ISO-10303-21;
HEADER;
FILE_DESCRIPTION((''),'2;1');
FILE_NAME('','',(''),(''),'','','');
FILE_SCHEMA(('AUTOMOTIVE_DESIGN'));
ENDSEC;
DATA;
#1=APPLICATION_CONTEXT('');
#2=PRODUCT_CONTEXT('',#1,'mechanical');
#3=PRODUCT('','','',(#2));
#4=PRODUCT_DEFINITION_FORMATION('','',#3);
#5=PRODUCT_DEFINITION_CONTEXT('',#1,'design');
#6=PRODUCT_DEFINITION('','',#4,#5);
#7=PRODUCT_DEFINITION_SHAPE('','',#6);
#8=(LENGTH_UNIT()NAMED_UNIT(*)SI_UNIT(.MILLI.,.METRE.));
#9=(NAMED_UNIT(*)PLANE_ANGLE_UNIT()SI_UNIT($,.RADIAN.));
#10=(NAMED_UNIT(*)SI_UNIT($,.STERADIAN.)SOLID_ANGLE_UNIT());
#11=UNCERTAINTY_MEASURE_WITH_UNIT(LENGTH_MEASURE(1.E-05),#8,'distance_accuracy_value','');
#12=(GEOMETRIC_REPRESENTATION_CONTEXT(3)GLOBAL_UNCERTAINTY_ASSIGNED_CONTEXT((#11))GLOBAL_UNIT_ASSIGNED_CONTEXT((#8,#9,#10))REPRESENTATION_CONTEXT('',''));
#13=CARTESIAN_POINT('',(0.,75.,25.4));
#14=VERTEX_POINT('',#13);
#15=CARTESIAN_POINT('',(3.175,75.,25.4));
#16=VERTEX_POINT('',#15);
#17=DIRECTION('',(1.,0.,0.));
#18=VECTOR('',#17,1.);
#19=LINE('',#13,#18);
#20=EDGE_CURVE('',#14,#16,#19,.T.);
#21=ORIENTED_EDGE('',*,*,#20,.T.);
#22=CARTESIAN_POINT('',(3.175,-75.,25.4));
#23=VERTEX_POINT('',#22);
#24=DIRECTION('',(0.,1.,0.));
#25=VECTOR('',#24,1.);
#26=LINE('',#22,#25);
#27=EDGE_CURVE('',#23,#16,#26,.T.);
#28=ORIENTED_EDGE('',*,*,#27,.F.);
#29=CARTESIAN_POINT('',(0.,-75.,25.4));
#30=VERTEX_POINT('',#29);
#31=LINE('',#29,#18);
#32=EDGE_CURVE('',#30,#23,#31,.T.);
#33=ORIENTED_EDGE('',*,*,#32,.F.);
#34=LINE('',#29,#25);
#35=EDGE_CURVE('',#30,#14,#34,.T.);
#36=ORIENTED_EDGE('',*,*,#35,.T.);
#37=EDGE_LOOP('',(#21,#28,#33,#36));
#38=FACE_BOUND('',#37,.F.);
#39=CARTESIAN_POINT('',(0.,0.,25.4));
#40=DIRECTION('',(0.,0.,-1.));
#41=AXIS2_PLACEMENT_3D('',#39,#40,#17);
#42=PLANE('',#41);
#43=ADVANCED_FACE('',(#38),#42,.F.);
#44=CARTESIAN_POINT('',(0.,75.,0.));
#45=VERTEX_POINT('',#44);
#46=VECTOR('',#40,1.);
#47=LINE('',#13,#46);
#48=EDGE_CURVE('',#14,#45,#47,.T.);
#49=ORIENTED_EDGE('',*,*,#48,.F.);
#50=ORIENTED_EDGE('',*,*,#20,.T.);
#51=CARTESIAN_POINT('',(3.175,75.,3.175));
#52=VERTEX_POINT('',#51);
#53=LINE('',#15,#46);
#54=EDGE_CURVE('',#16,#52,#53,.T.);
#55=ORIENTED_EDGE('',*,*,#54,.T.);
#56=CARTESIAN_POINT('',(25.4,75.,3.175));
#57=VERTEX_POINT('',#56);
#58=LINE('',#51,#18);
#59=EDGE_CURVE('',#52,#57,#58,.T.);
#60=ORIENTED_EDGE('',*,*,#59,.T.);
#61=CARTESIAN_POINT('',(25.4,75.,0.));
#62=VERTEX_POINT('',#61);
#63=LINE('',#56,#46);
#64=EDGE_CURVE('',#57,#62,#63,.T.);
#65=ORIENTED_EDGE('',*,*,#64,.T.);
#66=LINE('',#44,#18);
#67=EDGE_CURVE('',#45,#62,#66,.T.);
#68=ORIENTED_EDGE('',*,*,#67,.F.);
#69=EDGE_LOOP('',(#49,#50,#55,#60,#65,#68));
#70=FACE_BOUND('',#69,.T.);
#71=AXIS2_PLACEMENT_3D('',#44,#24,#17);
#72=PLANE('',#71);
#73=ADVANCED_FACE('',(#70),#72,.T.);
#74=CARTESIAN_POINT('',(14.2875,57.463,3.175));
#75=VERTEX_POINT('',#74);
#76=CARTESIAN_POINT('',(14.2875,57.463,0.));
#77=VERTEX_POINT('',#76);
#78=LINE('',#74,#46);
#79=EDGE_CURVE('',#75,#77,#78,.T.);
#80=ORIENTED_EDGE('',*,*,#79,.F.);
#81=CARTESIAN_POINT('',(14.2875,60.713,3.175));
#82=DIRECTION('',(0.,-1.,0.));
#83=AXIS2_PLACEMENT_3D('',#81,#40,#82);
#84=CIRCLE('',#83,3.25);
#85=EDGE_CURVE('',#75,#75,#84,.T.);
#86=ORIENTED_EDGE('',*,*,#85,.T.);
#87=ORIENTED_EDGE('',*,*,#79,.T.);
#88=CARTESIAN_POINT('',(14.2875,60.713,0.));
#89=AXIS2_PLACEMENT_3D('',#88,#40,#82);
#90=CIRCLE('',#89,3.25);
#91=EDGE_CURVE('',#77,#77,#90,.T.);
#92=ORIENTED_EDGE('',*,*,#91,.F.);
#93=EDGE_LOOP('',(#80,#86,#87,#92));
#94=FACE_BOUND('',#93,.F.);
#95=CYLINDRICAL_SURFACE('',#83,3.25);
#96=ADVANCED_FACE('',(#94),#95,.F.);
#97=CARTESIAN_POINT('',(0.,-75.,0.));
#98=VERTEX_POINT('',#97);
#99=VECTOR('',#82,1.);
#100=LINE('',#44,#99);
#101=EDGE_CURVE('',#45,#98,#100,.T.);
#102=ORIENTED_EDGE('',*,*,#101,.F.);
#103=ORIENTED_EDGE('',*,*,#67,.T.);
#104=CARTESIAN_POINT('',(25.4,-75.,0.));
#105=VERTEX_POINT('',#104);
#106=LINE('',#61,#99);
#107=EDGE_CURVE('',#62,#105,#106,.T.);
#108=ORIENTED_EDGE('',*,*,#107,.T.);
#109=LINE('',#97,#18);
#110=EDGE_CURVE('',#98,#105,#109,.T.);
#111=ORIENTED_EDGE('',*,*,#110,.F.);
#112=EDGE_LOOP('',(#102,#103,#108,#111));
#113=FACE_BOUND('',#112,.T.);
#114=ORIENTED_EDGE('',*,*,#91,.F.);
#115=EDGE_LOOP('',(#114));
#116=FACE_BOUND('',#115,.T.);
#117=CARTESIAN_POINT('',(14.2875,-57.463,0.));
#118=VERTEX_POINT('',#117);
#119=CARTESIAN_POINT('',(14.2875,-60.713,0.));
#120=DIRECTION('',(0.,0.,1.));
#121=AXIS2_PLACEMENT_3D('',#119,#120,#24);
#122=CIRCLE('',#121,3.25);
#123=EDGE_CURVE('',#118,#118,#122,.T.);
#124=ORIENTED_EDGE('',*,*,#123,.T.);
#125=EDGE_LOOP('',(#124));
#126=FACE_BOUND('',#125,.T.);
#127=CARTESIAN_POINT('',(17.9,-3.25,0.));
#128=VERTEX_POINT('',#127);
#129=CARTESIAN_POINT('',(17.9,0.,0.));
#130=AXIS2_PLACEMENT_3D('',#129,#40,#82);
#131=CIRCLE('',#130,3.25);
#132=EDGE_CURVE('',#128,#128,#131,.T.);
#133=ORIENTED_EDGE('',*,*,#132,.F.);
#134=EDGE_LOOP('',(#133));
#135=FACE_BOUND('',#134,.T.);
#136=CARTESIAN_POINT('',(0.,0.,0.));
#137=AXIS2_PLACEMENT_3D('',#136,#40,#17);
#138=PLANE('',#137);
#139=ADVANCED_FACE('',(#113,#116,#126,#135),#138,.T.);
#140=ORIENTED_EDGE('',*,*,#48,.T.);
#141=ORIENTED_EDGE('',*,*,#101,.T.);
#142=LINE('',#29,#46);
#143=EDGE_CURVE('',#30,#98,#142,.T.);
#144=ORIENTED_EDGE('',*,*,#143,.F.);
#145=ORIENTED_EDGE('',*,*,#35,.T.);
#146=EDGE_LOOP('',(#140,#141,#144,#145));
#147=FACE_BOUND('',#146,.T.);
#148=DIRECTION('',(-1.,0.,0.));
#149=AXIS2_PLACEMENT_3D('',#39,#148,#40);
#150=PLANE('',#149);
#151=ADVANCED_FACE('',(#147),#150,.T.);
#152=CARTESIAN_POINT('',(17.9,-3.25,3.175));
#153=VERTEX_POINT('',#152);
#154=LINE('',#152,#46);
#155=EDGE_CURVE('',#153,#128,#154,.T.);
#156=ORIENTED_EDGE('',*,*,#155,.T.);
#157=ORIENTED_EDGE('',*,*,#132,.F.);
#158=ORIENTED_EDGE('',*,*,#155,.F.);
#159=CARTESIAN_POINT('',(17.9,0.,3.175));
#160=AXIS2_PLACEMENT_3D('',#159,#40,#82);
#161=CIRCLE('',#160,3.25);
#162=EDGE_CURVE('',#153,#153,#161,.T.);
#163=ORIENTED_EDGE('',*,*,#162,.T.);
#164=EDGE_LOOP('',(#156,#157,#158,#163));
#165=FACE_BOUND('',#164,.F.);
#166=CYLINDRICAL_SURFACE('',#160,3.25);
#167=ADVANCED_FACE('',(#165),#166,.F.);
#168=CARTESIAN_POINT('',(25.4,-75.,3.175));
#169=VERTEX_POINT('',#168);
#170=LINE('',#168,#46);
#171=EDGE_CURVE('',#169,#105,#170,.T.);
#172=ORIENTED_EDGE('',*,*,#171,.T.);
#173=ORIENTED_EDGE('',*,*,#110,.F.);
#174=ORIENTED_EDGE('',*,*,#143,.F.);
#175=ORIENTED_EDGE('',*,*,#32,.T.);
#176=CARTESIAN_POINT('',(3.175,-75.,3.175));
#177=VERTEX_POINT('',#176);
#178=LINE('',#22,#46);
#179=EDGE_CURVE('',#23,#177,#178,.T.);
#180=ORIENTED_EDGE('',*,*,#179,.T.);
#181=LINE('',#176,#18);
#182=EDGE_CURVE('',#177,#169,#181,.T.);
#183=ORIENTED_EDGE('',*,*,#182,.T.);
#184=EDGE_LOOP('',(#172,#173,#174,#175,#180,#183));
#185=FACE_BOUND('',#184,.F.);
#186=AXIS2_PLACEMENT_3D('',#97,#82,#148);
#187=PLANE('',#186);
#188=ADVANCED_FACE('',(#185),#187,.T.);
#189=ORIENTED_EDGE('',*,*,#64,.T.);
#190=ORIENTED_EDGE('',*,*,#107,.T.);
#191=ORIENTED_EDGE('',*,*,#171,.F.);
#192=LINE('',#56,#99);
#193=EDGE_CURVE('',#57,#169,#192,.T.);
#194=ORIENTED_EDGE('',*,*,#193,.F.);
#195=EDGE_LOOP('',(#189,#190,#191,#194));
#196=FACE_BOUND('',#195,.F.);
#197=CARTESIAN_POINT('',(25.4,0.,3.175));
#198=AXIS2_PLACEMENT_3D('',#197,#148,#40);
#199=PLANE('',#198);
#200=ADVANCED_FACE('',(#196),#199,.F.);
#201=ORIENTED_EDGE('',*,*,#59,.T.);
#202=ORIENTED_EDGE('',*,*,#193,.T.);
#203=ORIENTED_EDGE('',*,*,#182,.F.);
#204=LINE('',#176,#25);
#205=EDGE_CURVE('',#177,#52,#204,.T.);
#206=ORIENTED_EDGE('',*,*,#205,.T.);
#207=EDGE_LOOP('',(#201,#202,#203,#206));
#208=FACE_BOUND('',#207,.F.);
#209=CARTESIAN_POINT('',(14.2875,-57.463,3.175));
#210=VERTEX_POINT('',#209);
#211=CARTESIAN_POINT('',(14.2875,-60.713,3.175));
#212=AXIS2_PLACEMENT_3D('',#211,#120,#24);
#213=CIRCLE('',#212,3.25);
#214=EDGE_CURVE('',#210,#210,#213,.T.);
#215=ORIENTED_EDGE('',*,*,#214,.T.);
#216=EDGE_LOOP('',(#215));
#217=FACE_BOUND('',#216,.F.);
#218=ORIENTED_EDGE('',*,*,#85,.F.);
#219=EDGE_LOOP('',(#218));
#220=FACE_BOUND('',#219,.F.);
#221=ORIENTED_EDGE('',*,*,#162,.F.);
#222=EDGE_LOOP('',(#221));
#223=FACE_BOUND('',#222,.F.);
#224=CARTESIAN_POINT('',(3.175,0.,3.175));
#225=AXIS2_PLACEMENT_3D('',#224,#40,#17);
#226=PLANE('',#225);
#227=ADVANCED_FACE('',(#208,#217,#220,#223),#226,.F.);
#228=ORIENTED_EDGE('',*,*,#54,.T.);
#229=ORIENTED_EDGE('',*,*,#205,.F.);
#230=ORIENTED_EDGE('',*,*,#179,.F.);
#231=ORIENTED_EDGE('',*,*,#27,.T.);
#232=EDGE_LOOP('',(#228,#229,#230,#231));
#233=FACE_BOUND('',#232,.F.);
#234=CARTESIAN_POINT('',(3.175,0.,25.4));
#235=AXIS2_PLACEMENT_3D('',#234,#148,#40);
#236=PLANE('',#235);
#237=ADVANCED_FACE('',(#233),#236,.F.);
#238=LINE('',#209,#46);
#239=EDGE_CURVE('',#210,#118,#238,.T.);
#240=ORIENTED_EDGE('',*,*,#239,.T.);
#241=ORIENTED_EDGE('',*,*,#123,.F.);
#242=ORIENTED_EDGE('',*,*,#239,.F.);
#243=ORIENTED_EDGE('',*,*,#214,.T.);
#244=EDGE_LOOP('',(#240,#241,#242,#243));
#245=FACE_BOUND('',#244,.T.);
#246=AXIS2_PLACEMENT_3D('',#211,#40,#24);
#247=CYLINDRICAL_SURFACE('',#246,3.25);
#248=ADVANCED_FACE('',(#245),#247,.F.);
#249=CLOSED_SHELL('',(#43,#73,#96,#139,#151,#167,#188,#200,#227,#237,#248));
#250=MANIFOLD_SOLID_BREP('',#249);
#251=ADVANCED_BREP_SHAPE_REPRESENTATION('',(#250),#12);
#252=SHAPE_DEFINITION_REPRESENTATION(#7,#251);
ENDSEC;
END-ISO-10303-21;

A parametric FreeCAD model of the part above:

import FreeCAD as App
import Part
import Sketcher

V = App.Vector
Q = App.Units.Quantity


def add_polygon(sketch, points):
    """Adds a closed chain of lines whose ends are joined by coincident constraints."""
    first, n = sketch.GeometryCount, len(points)
    for a, b in zip(points, points[1:] + points[:1]):
        sketch.addGeometry(Part.LineSegment(App.Vector(*a, 0), App.Vector(*b, 0)), False)
    for i in range(n):
        sketch.addConstraint(Sketcher.Constraint("Coincident", first + i, 2, first + (i + 1) % n, 1))

doc = App.newDocument("Part")
params = doc.addObject("Spreadsheet::Sheet", "Params")
for row, (alias, value) in enumerate([
    ("sketch1_width", "1 in"),
    ("sketch1_width2", "0.125 in"),
    ("pad1_length", "75 mm"),
    ("hole_diameter", "0.2559055 in"),
    ("hole2_diameter", "0.2559055 in"),
    ("hole2_depth", "1.1811024 in"),
    ("hole3_diameter", "0.2559055 in"),
    ("hole3_depth", "1.1811024 in"),
], start=1):
    params.set(f"A{row}", alias)
    params.set(f"B{row}", "=" + value)
    params.setAlias(f"B{row}", alias)

body = doc.addObject("PartDesign::Body", "Body")

# Sketch on XZ plane
sketch1 = body.newObject("Sketcher::SketchObject", "Sketch")
sketch1.AttachmentSupport = (doc.getObject("XZ_Plane"), [""])
sketch1.MapMode = "FlatFace"
add_polygon(sketch1, [(0, 0), (0, 25.4), (3.2, 25.4), (3.2, 3.2), (25.4, 3.2), (25.4, 0)])  # lines 0-5
sketch1.addConstraint(Sketcher.Constraint("Vertical", 0))
sketch1.addConstraint(Sketcher.Constraint("Horizontal", 1))
sketch1.addConstraint(Sketcher.Constraint("Vertical", 2))
sketch1.addConstraint(Sketcher.Constraint("Horizontal", 3))
sketch1.addConstraint(Sketcher.Constraint("Vertical", 4))
sketch1.addConstraint(Sketcher.Constraint("Horizontal", 5))
sketch1.addConstraint(Sketcher.Constraint("Coincident", 5, 2, -1, 1))
sketch1.addConstraint(Sketcher.Constraint("Equal", 5, 0))
sketch1.addConstraint(Sketcher.Constraint("Equal", 3, 2))
sketch1.addConstraint(Sketcher.Constraint("DistanceX", 5, 2, 5, 1, Q("1 in")))
sketch1.addConstraint(Sketcher.Constraint("DistanceX", 1, 1, 1, 2, Q("0.125 in")))
sketch1.setExpression("Constraints[15]", "Params.sketch1_width")
sketch1.setExpression("Constraints[16]", "Params.sketch1_width2")
pad1 = body.newObject("PartDesign::Pad", "Pad")
pad1.Profile = sketch1
pad1.setExpression("Length", "Params.pad1_length")
pad1.Reversed = True

# Sketch on YZ plane
sketch2 = body.newObject("Sketcher::SketchObject", "Sketch001")
sketch2.AttachmentSupport = (doc.getObject("YZ_Plane"), [""])
sketch2.MapMode = "FlatFace"
sketch2.AttachmentOffset = App.Placement(V(0, 0, 0.125 * 25.4), App.Rotation())
sketch2.addGeometry(Part.Circle(V(110.5, 14.3, 0), V(0, 0, 1), 3.2), False)
sketch2.addConstraint(Sketcher.Constraint("Diameter", 0, Q("0.2559 in")))
sketch2.addConstraint(Sketcher.Constraint("DistanceY", -1, 1, 0, 3, Q("0.5625 in")))
sketch2.addConstraint(Sketcher.Constraint("DistanceX", -1, 1, 0, 3, Q("110.487 mm")))
doc.recompute()
hole = body.newObject("PartDesign::Hole", "Hole")
hole.Profile = sketch2
hole.ThreadType = "None"
hole.setExpression("Diameter", "Params.hole_diameter")
hole.DepthType = "ThroughAll"

# Sketch on XY plane
sketch3 = body.newObject("Sketcher::SketchObject", "Sketch002")
sketch3.AttachmentSupport = (doc.getObject("XY_Plane"), [""])
sketch3.MapMode = "FlatFace"
sketch3.AttachmentOffset = App.Placement(V(0, 0, 0.125 * 25.4), App.Rotation())
sketch3.addGeometry(Part.Circle(V(14.3, 60.7, 0), V(0, 0, 1), 3.2), False)
sketch3.addConstraint(Sketcher.Constraint("Diameter", 0, Q("0.2559 in")))
sketch3.addConstraint(Sketcher.Constraint("DistanceX", -1, 1, 0, 3, Q("0.5625 in")))
sketch3.addConstraint(Sketcher.Constraint("DistanceY", -1, 1, 0, 3, Q("60.713 mm")))
doc.recompute()
hole2 = body.newObject("PartDesign::Hole", "Hole001")
hole2.Profile = sketch3
hole2.ThreadType = "None"
hole2.setExpression("Diameter", "Params.hole2_diameter")
hole2.DepthType = "Dimension"
hole2.setExpression("Depth", "Params.hole2_depth")
hole2.DrillPoint = "Angled"
hole2.DrillPointAngle = 118
doc.recompute()

mirrored = body.newObject("PartDesign::Mirrored", "Mirrored")
mirrored.TransformMode = "Transform body"
mirrored.MirrorPlane = (doc.getObject("XZ_Plane"), [""])
body.Tip = mirrored

# Sketch on XY plane
sketch4 = body.newObject("Sketcher::SketchObject", "Sketch003")
sketch4.AttachmentSupport = (doc.getObject("XY_Plane"), [""])
sketch4.MapMode = "FlatFace"
sketch4.AttachmentOffset = App.Placement(V(0, 0, 0.125 * 25.4), App.Rotation())
sketch4.addGeometry(Part.Circle(V(17.9, 0, 0), V(0, 0, 1), 3.2), False)
sketch4.addConstraint(Sketcher.Constraint("PointOnObject", 0, 3, -1))
sketch4.addConstraint(Sketcher.Constraint("Diameter", 0, Q("0.2559 in")))
sketch4.addConstraint(Sketcher.Constraint("DistanceX", -1, 1, 0, 3, Q("17.9 mm")))
doc.recompute()
hole3 = body.newObject("PartDesign::Hole", "Hole002")
hole3.Profile = sketch4
hole3.ThreadType = "None"
hole3.setExpression("Diameter", "Params.hole3_diameter")
hole3.DepthType = "Dimension"
hole3.setExpression("Depth", "Params.hole3_depth")
hole3.DrillPoint = "Angled"
hole3.DrillPointAngle = 118

doc.recompute()
